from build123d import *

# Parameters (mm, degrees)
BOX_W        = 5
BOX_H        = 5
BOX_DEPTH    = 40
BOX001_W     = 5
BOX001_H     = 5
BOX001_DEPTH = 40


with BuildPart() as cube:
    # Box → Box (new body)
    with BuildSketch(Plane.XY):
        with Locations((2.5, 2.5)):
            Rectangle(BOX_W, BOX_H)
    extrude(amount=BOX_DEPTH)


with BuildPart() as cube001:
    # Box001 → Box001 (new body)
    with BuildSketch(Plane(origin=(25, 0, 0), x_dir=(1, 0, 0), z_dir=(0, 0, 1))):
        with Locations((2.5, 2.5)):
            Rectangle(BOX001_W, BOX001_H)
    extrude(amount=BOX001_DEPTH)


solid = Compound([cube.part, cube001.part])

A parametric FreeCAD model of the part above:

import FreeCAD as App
import Part
import Sketcher

V = App.Vector


def add_polygon(sketch, points):
    """Adds a closed chain of lines whose ends are joined by coincident constraints."""
    first, n = sketch.GeometryCount, len(points)
    for a, b in zip(points, points[1:] + points[:1]):
        sketch.addGeometry(Part.LineSegment(App.Vector(*a, 0), App.Vector(*b, 0)), False)
    for i in range(n):
        sketch.addConstraint(Sketcher.Constraint("Coincident", first + i, 2, first + (i + 1) % n, 1))

doc = App.newDocument("Part")
body = doc.addObject("PartDesign::Body", "Body")

# Sketch on XY plane
sketch1 = body.newObject("Sketcher::SketchObject", "Sketch")
sketch1.AttachmentSupport = (doc.getObject("XY_Plane"), [""])
sketch1.MapMode = "FlatFace"
add_polygon(sketch1, [(0, 5), (0, 0), (5, 0), (5, 5)])  # lines 0-3
sketch1.addConstraint([
    Sketcher.Constraint("Vertical", 0),
    Sketcher.Constraint("Horizontal", 1),
    Sketcher.Constraint("Vertical", 2),
    Sketcher.Constraint("Horizontal", 3),
    Sketcher.Constraint("Coincident", 0, 2, -1, 1),
    Sketcher.Constraint("Equal", 3, 0),
    Sketcher.Constraint("DistanceX", 1, 1, 1, 2, 5.0),
])
pad1 = body.newObject("PartDesign::Pad", "Pad")
pad1.Profile = sketch1
pad1.Length = 40
body2 = doc.addObject("PartDesign::Body", "Body001")

# Sketch on XY plane
sketch2 = body2.newObject("Sketcher::SketchObject", "Sketch001")
sketch2.AttachmentSupport = (doc.getObject("XY_Plane001"), [""])
sketch2.MapMode = "FlatFace"
add_polygon(sketch2, [(25, 5), (25, 0), (30, 0), (30, 5)])  # lines 0-3
sketch2.addConstraint([
    Sketcher.Constraint("Vertical", 0),
    Sketcher.Constraint("Horizontal", 1),
    Sketcher.Constraint("Vertical", 2),
    Sketcher.Constraint("Horizontal", 3),
    Sketcher.Constraint("PointOnObject", 0, 2, -1),
    Sketcher.Constraint("Equal", 3, 0),
    Sketcher.Constraint("DistanceX", 1, 1, 1, 2, 5.0),
    Sketcher.Constraint("DistanceX", -1, 1, 0, 2, 25.0),
])
pad2 = body2.newObject("PartDesign::Pad", "Pad001")
pad2.Profile = sketch2
pad2.Length = 40

doc.recompute()
